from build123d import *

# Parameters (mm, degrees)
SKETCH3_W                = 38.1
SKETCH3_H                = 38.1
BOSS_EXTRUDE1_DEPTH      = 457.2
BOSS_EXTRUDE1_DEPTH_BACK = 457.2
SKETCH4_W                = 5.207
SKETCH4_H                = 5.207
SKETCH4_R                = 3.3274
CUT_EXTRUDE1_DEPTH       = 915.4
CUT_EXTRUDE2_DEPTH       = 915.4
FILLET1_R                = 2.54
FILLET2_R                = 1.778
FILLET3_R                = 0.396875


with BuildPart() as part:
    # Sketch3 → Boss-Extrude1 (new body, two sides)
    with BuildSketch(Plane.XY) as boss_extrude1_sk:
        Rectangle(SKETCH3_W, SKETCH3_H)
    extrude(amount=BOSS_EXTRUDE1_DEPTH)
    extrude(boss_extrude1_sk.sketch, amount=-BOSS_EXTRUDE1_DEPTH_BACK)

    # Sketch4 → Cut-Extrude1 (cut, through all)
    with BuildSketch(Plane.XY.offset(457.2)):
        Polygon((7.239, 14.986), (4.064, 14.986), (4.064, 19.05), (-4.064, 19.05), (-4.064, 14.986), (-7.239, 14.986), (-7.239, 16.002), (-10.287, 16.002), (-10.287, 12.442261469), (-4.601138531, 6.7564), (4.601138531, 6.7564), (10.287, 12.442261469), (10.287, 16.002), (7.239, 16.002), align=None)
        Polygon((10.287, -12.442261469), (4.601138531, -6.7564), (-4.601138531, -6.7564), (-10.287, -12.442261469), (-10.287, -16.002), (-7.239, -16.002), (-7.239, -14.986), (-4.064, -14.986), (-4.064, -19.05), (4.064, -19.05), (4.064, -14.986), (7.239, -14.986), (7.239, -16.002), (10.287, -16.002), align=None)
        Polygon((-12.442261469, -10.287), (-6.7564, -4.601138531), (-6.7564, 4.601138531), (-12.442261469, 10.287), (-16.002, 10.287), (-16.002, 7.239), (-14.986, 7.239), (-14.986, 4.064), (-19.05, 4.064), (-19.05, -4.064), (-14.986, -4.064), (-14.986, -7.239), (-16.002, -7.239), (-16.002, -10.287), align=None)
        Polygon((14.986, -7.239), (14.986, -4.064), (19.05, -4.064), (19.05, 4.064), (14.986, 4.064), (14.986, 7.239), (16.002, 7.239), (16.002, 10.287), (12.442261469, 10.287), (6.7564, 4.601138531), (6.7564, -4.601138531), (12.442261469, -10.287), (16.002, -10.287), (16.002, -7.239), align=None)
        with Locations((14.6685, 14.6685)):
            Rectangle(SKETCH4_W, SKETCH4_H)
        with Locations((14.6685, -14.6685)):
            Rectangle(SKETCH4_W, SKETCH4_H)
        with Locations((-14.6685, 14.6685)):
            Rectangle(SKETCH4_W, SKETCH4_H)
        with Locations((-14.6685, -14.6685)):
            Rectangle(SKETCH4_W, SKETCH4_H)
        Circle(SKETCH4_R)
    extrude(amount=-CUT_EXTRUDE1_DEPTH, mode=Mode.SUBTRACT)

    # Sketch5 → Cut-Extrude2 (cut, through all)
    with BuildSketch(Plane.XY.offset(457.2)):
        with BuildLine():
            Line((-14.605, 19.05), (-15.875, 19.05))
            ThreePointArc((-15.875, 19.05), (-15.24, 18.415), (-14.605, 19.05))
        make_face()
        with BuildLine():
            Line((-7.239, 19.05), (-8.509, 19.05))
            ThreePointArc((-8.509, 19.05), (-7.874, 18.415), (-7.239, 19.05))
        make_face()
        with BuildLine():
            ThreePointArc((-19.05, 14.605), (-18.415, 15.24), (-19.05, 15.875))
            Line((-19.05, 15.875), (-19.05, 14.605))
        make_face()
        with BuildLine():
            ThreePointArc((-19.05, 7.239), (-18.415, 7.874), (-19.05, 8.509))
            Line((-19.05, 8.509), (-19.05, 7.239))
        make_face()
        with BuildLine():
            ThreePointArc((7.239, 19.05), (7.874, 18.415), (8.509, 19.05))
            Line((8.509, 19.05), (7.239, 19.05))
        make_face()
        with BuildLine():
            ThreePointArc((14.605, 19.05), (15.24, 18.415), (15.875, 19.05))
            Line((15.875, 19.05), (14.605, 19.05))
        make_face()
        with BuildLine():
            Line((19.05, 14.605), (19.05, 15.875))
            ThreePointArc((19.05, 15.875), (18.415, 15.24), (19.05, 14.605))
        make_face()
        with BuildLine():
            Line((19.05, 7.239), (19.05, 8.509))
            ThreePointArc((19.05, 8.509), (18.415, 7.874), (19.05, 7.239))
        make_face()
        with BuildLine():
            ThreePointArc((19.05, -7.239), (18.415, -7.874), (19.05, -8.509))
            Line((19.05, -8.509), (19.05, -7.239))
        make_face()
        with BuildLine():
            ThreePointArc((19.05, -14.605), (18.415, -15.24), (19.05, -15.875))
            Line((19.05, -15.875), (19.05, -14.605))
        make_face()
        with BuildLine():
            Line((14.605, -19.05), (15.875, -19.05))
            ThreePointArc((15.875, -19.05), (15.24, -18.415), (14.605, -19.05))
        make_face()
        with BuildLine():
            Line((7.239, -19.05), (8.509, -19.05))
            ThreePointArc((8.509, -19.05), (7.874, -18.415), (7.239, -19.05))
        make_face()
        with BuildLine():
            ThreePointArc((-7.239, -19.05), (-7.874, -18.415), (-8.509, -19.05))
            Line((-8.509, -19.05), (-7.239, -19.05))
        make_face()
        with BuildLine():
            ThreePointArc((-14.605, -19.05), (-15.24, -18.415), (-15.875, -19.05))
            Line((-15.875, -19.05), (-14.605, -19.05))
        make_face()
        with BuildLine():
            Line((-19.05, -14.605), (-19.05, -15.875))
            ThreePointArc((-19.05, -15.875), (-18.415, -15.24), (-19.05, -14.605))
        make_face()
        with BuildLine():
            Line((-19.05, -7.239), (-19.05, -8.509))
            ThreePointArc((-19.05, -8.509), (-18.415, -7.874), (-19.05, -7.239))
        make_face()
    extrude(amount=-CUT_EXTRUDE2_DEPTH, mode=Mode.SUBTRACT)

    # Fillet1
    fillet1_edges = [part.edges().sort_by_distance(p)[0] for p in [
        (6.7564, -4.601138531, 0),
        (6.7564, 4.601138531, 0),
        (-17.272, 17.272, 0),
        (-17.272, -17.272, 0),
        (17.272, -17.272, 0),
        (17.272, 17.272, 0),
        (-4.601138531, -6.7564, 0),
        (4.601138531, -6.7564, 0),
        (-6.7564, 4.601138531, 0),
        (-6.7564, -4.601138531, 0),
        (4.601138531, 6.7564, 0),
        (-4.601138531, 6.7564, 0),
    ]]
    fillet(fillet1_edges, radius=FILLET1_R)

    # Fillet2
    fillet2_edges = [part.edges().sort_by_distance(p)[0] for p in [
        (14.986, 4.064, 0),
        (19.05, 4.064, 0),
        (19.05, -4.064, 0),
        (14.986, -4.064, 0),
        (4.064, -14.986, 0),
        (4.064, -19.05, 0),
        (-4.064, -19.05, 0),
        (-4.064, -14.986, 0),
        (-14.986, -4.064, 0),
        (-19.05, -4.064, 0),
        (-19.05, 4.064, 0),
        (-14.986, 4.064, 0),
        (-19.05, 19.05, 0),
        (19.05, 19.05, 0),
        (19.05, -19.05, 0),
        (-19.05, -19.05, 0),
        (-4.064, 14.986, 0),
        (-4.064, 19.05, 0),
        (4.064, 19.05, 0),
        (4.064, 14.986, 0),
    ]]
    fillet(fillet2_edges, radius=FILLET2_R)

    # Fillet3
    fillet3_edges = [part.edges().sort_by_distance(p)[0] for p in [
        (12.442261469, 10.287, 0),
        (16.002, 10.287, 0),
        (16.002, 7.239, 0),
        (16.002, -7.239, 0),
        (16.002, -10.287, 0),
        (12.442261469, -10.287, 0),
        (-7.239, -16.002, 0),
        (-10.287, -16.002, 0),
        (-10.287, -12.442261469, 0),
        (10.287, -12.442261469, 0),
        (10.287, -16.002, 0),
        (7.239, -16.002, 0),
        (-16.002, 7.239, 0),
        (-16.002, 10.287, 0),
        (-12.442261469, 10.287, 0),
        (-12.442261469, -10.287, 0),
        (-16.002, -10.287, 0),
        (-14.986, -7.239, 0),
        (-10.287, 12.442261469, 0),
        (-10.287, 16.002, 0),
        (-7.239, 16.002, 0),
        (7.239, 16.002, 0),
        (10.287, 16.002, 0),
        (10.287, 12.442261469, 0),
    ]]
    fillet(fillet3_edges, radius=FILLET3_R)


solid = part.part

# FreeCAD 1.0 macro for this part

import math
import FreeCAD as App
import Part
import Sketcher
Q = App.Units.Quantity


def edges_at(feature, points):
    """Names of the edges that pass closest to the given points."""
    edges = feature.Shape.Edges
    near = lambda p: min(range(len(edges)), key=lambda i: edges[i].distToShape(Part.Vertex(*p))[0])
    return sorted({f"Edge{near(p) + 1}" for p in points})


def add_polygon(sketch, points):
    """Adds a closed chain of lines whose ends are joined by coincident constraints."""
    first, n = sketch.GeometryCount, len(points)
    for a, b in zip(points, points[1:] + points[:1]):
        sketch.addGeometry(Part.LineSegment(App.Vector(*a, 0), App.Vector(*b, 0)), False)
    for i in range(n):
        sketch.addConstraint(Sketcher.Constraint("Coincident", first + i, 2, first + (i + 1) % n, 1))

doc = App.newDocument("Part")
body = doc.addObject("PartDesign::Body", "Body")

# Sketch on XY plane
sketch1 = doc.addObject("Sketcher::SketchObject", "Sketch")
body.addObject(sketch1)
sketch1.AttachmentSupport = (doc.XY_Plane, [""])
sketch1.MapMode = "FlatFace"
add_polygon(sketch1, [(-19, 19), (-19, -19), (19, -19), (19, 19)])  # lines 0-3
sketch1.addConstraint(Sketcher.Constraint("Vertical", 0))
sketch1.addConstraint(Sketcher.Constraint("Horizontal", 1))
sketch1.addConstraint(Sketcher.Constraint("Vertical", 2))
sketch1.addConstraint(Sketcher.Constraint("Horizontal", 3))
sketch1.addConstraint(Sketcher.Constraint("Symmetric", 0, 2, 2, 2, -1, 1))
sketch1.addConstraint(Sketcher.Constraint("Equal", 3, 0))
sketch1.addConstraint(Sketcher.Constraint("DistanceX", 1, 1, 1, 2, Q("1.5 in")))
pad1 = doc.addObject("PartDesign::Pad", "Pad")
body.addObject(pad1)
pad1.Profile = sketch1
pad1.Type = "TwoLengths"
pad1.Length = Q("18 in")
pad1.Length2 = Q("18 in")

# Sketch on XY plane
sketch2 = doc.addObject("Sketcher::SketchObject", "Sketch001")
body.addObject(sketch2)
sketch2.AttachmentSupport = (doc.XY_Plane, [""])
sketch2.MapMode = "FlatFace"
sketch2.AttachmentOffset = App.Placement(App.Vector(0, 0, 18 * 25.4), App.Rotation())
add_polygon(sketch2, [(7.2, 15), (4.1, 15), (4.1, 19.1), (-4.1, 19.1), (-4.1, 15), (-7.2, 15), (-7.2, 16), (-10.3, 16), (-10.3, 12.4), (-4.6, 6.8), (4.6, 6.8), (10.3, 12.4), (10.3, 16), (7.2, 16)])  # lines 0-13
add_polygon(sketch2, [(10.3, -12.4), (4.6, -6.8), (-4.6, -6.8), (-10.3, -12.4), (-10.3, -16), (-7.2, -16), (-7.2, -15), (-4.1, -15), (-4.1, -19.1), (4.1, -19.1), (4.1, -15), (7.2, -15), (7.2, -16), (10.3, -16)])  # lines 14-27
add_polygon(sketch2, [(-12.4, -10.3), (-6.8, -4.6), (-6.8, 4.6), (-12.4, 10.3), (-16, 10.3), (-16, 7.2), (-15, 7.2), (-15, 4.1), (-19.1, 4.1), (-19.1, -4.1), (-15, -4.1), (-15, -7.2), (-16, -7.2), (-16, -10.3)])  # lines 28-41
add_polygon(sketch2, [(15, -7.2), (15, -4.1), (19.1, -4.1), (19.1, 4.1), (15, 4.1), (15, 7.2), (16, 7.2), (16, 10.3), (12.4, 10.3), (6.8, 4.6), (6.8, -4.6), (12.4, -10.3), (16, -10.3), (16, -7.2)])  # lines 42-55
add_polygon(sketch2, [(12.1, 17.3), (12.1, 12.1), (17.3, 12.1), (17.3, 17.3)])  # lines 56-59
add_polygon(sketch2, [(12.1, -12.1), (12.1, -17.3), (17.3, -17.3), (17.3, -12.1)])  # lines 60-63
add_polygon(sketch2, [(-17.3, 17.3), (-17.3, 12.1), (-12.1, 12.1), (-12.1, 17.3)])  # lines 64-67
add_polygon(sketch2, [(-17.3, -12.1), (-17.3, -17.3), (-12.1, -17.3), (-12.1, -12.1)])  # lines 68-71
sketch2.addGeometry(Part.Circle(App.Vector(0, 0, 0), App.Vector(0, 0, 1), 3.3), False)  # 72
sketch2.addConstraint(Sketcher.Constraint("Horizontal", 0))
sketch2.addConstraint(Sketcher.Constraint("Vertical", 1))
sketch2.addConstraint(Sketcher.Constraint("Horizontal", 2))
sketch2.addConstraint(Sketcher.Constraint("Vertical", 3))
sketch2.addConstraint(Sketcher.Constraint("Horizontal", 4))
sketch2.addConstraint(Sketcher.Constraint("Vertical", 5))
sketch2.addConstraint(Sketcher.Constraint("Horizontal", 6))
sketch2.addConstraint(Sketcher.Constraint("Vertical", 7))
sketch2.addConstraint(Sketcher.Constraint("Horizontal", 9))
sketch2.addConstraint(Sketcher.Constraint("Vertical", 11))
sketch2.addConstraint(Sketcher.Constraint("Horizontal", 12))
sketch2.addConstraint(Sketcher.Constraint("Vertical", 13))
sketch2.addConstraint(Sketcher.Constraint("Horizontal", 15))
sketch2.addConstraint(Sketcher.Constraint("Vertical", 17))
sketch2.addConstraint(Sketcher.Constraint("Horizontal", 18))
sketch2.addConstraint(Sketcher.Constraint("Vertical", 19))
sketch2.addConstraint(Sketcher.Constraint("Horizontal", 20))
sketch2.addConstraint(Sketcher.Constraint("Vertical", 21))
sketch2.addConstraint(Sketcher.Constraint("Horizontal", 22))
sketch2.addConstraint(Sketcher.Constraint("Vertical", 23))
sketch2.addConstraint(Sketcher.Constraint("Horizontal", 24))
sketch2.addConstraint(Sketcher.Constraint("Vertical", 25))
sketch2.addConstraint(Sketcher.Constraint("Horizontal", 26))
sketch2.addConstraint(Sketcher.Constraint("Vertical", 27))
sketch2.addConstraint(Sketcher.Constraint("Vertical", 29))
sketch2.addConstraint(Sketcher.Constraint("Horizontal", 31))
sketch2.addConstraint(Sketcher.Constraint("Vertical", 32))
sketch2.addConstraint(Sketcher.Constraint("Horizontal", 33))
sketch2.addConstraint(Sketcher.Constraint("Vertical", 34))
sketch2.addConstraint(Sketcher.Constraint("Horizontal", 35))
sketch2.addConstraint(Sketcher.Constraint("Vertical", 36))
sketch2.addConstraint(Sketcher.Constraint("Horizontal", 37))
sketch2.addConstraint(Sketcher.Constraint("Vertical", 38))
sketch2.addConstraint(Sketcher.Constraint("Horizontal", 39))
sketch2.addConstraint(Sketcher.Constraint("Vertical", 40))
sketch2.addConstraint(Sketcher.Constraint("Horizontal", 41))
sketch2.addConstraint(Sketcher.Constraint("Vertical", 42))
sketch2.addConstraint(Sketcher.Constraint("Horizontal", 43))
sketch2.addConstraint(Sketcher.Constraint("Vertical", 44))
sketch2.addConstraint(Sketcher.Constraint("Horizontal", 45))
sketch2.addConstraint(Sketcher.Constraint("Vertical", 46))
sketch2.addConstraint(Sketcher.Constraint("Horizontal", 47))
sketch2.addConstraint(Sketcher.Constraint("Vertical", 48))
sketch2.addConstraint(Sketcher.Constraint("Horizontal", 49))
sketch2.addConstraint(Sketcher.Constraint("Vertical", 51))
sketch2.addConstraint(Sketcher.Constraint("Horizontal", 53))
sketch2.addConstraint(Sketcher.Constraint("Vertical", 54))
sketch2.addConstraint(Sketcher.Constraint("Horizontal", 55))
sketch2.addConstraint(Sketcher.Constraint("Vertical", 56))
sketch2.addConstraint(Sketcher.Constraint("Horizontal", 57))
sketch2.addConstraint(Sketcher.Constraint("Vertical", 58))
sketch2.addConstraint(Sketcher.Constraint("Horizontal", 59))
sketch2.addConstraint(Sketcher.Constraint("Vertical", 60))
sketch2.addConstraint(Sketcher.Constraint("Horizontal", 61))
sketch2.addConstraint(Sketcher.Constraint("Vertical", 62))
sketch2.addConstraint(Sketcher.Constraint("Horizontal", 63))
sketch2.addConstraint(Sketcher.Constraint("Vertical", 64))
sketch2.addConstraint(Sketcher.Constraint("Horizontal", 65))
sketch2.addConstraint(Sketcher.Constraint("Vertical", 66))
sketch2.addConstraint(Sketcher.Constraint("Horizontal", 67))
sketch2.addConstraint(Sketcher.Constraint("Vertical", 68))
sketch2.addConstraint(Sketcher.Constraint("Horizontal", 69))
sketch2.addConstraint(Sketcher.Constraint("Vertical", 70))
sketch2.addConstraint(Sketcher.Constraint("Horizontal", 71))
sketch2.addConstraint(Sketcher.Constraint("Coincident", 72, 3, -1, 1))
sketch2.addConstraint(Sketcher.Constraint("Symmetric", 8, 2, 14, 2, -1, 1))
sketch2.addConstraint(Sketcher.Constraint("Symmetric", 10, 2, 16, 2, -1, 1))
sketch2.addConstraint(Sketcher.Constraint("Symmetric", 12, 2, 18, 2, -1, 1))
sketch2.addConstraint(Sketcher.Constraint("Symmetric", 0, 2, 20, 2, -1, 1))
sketch2.addConstraint(Sketcher.Constraint("Symmetric", 2, 2, 22, 2, -1, 1))
sketch2.addConstraint(Sketcher.Constraint("Symmetric", 4, 2, 24, 2, -1, 1))
sketch2.addConstraint(Sketcher.Constraint("Symmetric", 6, 2, 26, 2, -1, 1))
sketch2.addConstraint(Sketcher.Constraint("Symmetric", 34, 2, 42, 2, -1, 1))
sketch2.addConstraint(Sketcher.Constraint("Symmetric", 36, 2, 44, 2, -1, 1))
sketch2.addConstraint(Sketcher.Constraint("Symmetric", 38, 2, 46, 2, -1, 1))
sketch2.addConstraint(Sketcher.Constraint("Symmetric", 40, 2, 48, 2, -1, 1))
sketch2.addConstraint(Sketcher.Constraint("Symmetric", 28, 2, 50, 2, -1, 1))
sketch2.addConstraint(Sketcher.Constraint("Symmetric", 30, 2, 52, 2, -1, 1))
sketch2.addConstraint(Sketcher.Constraint("Symmetric", 32, 2, 54, 2, -1, 1))
sketch2.addConstraint(Sketcher.Constraint("Symmetric", 62, 2, 64, 2, -1, 1))
sketch2.addConstraint(Sketcher.Constraint("Symmetric", 60, 2, 66, 2, -1, 1))
sketch2.addConstraint(Sketcher.Constraint("Symmetric", 58, 2, 68, 2, -1, 1))
sketch2.addConstraint(Sketcher.Constraint("Symmetric", 56, 2, 70, 2, -1, 1))
sketch2.addConstraint(Sketcher.Constraint("Symmetric", 0, 2, 3, 2, -2))
sketch2.addConstraint(Sketcher.Constraint("Symmetric", 7, 2, 10, 2, -2))
sketch2.addConstraint(Sketcher.Constraint("Symmetric", 5, 2, 12, 2, -2))
sketch2.addConstraint(Sketcher.Constraint("Symmetric", 37, 2, 42, 2, -2))
sketch2.addConstraint(Sketcher.Constraint("Symmetric", 32, 2, 47, 2, -2))
sketch2.addConstraint(Sketcher.Constraint("Symmetric", 30, 2, 49, 2, -2))
sketch2.addConstraint(Sketcher.Constraint("Symmetric", 57, 2, 64, 2, -2))
sketch2.addConstraint(Sketcher.Constraint("Symmetric", 59, 2, 66, 2, -2))
sketch2.addConstraint(Sketcher.Constraint("Perpendicular", 8, 10))
sketch2.addConstraint(Sketcher.Constraint("Perpendicular", 10, 14))
sketch2.addConstraint(Sketcher.Constraint("Perpendicular", 14, 16))
sketch2.addConstraint(Sketcher.Constraint("Parallel", 16, 28))
sketch2.addConstraint(Sketcher.Constraint("Perpendicular", 28, 30))
sketch2.addConstraint(Sketcher.Constraint("Perpendicular", 30, 50))
sketch2.addConstraint(Sketcher.Constraint("Perpendicular", 50, 52))
sketch2.addConstraint(Sketcher.Constraint("Horizontal", 29, 2, 50, 2))
sketch2.addConstraint(Sketcher.Constraint("Equal", 45, 1))
sketch2.addConstraint(Sketcher.Constraint("Equal", 55, 5))
sketch2.addConstraint(Sketcher.Constraint("Equal", 53, 7))
sketch2.addConstraint(Sketcher.Constraint("Equal", 15, 29))
sketch2.addConstraint(Sketcher.Constraint("Equal", 26, 32))
sketch2.addConstraint(Sketcher.Constraint("Equal", 24, 34))
sketch2.addConstraint(Sketcher.Constraint("Equal", 22, 36))
sketch2.addConstraint(Sketcher.Constraint("Equal", 71, 56))
sketch2.addConstraint(Sketcher.Constraint("Diameter", 72, Q("0.262 in")))
sketch2.addConstraint(Sketcher.Constraint("DistanceX", 2, 2, 2, 1, Q("0.32 in")))
sketch2.addConstraint(Sketcher.Constraint("DistanceX", 6, 2, 6, 1, Q("0.12 in")))
sketch2.addConstraint(Sketcher.Constraint("DistanceX", 33, 1, 33, 2, Q("0.04 in")))
sketch2.addConstraint(Sketcher.Constraint("DistanceX", 35, 2, 35, 1, Q("0.16 in")))
sketch2.addConstraint(Sketcher.Constraint("DistanceX", 0, 2, 0, 1, Q("0.125 in")))
sketch2.addConstraint(Sketcher.Constraint("DistanceX", 57, 1, 57, 2, Q("0.205 in")))
sketch2.addConstraint(Sketcher.Constraint("DistanceY", -1, 1, 0, 2, Q("0.59 in")))
sketch2.addConstraint(Sketcher.Constraint("DistanceX", 31, 2, -1, 1, Q("0.63 in")))
sketch2.addConstraint(Sketcher.Constraint("DistanceX", -1, 1, 57, 2, Q("0.68 in")))
sketch2.addConstraint(Sketcher.Constraint("DistanceY", -1, 1, 58, 2, Q("0.68 in")))
sketch2.addConstraint(Sketcher.Constraint("DistanceY", -1, 1, 8, 2, Q("0.266 in")))
sketch2.addConstraint(Sketcher.Constraint("DistanceX", 31, 2, 31, 1, 3.559739))
pocket1 = doc.addObject("PartDesign::Pocket", "Pocket")
body.addObject(pocket1)
pocket1.Profile = sketch2
pocket1.Type = "ThroughAll"

# Sketch on XY plane
sketch3 = doc.addObject("Sketcher::SketchObject", "Sketch002")
body.addObject(sketch3)
sketch3.AttachmentSupport = (doc.XY_Plane, [""])
sketch3.MapMode = "FlatFace"
sketch3.AttachmentOffset = App.Placement(App.Vector(0, 0, 18 * 25.4), App.Rotation())
sketch3.addGeometry(Part.LineSegment(App.Vector(-14.6, 19.1, 0), App.Vector(-15.9, 19.1, 0)), False)
sketch3.addGeometry(Part.ArcOfCircle(Part.Circle(App.Vector(-15.2, 19.1, 0), App.Vector(0, 0, 1), 0.6), math.radians(180), math.radians(360)), False)
sketch3.addGeometry(Part.LineSegment(App.Vector(-7.2, 19.1, 0), App.Vector(-8.5, 19.1, 0)), False)
sketch3.addGeometry(Part.ArcOfCircle(Part.Circle(App.Vector(-7.9, 19.1, 0), App.Vector(0, 0, 1), 0.6), math.radians(180), math.radians(360)), False)
sketch3.addGeometry(Part.ArcOfCircle(Part.Circle(App.Vector(-19.1, 15.2, 0), App.Vector(0, 0, 1), 0.6), math.radians(-90), math.radians(90)), False)
sketch3.addGeometry(Part.LineSegment(App.Vector(-19.1, 15.9, 0), App.Vector(-19.1, 14.6, 0)), False)
sketch3.addGeometry(Part.ArcOfCircle(Part.Circle(App.Vector(-19.1, 7.9, 0), App.Vector(0, 0, 1), 0.6), math.radians(-90), math.radians(90)), False)
sketch3.addGeometry(Part.LineSegment(App.Vector(-19.1, 8.5, 0), App.Vector(-19.1, 7.2, 0)), False)
sketch3.addGeometry(Part.ArcOfCircle(Part.Circle(App.Vector(7.9, 19.1, 0), App.Vector(0, 0, 1), 0.6), math.radians(180), math.radians(360)), False)
sketch3.addGeometry(Part.LineSegment(App.Vector(8.5, 19.1, 0), App.Vector(7.2, 19.1, 0)), False)
sketch3.addGeometry(Part.ArcOfCircle(Part.Circle(App.Vector(15.2, 19.1, 0), App.Vector(0, 0, 1), 0.6), math.radians(180), math.radians(360)), False)
sketch3.addGeometry(Part.LineSegment(App.Vector(15.9, 19.1, 0), App.Vector(14.6, 19.1, 0)), False)
sketch3.addGeometry(Part.LineSegment(App.Vector(19.1, 14.6, 0), App.Vector(19.1, 15.9, 0)), False)
sketch3.addGeometry(Part.ArcOfCircle(Part.Circle(App.Vector(19.1, 15.2, 0), App.Vector(0, 0, 1), 0.6), math.radians(90), math.radians(270)), False)
sketch3.addGeometry(Part.LineSegment(App.Vector(19.1, 7.2, 0), App.Vector(19.1, 8.5, 0)), False)
sketch3.addGeometry(Part.ArcOfCircle(Part.Circle(App.Vector(19.1, 7.9, 0), App.Vector(0, 0, 1), 0.6), math.radians(90), math.radians(270)), False)
sketch3.addGeometry(Part.ArcOfCircle(Part.Circle(App.Vector(19.1, -7.9, 0), App.Vector(0, 0, 1), 0.6), math.radians(90), math.radians(270)), False)
sketch3.addGeometry(Part.LineSegment(App.Vector(19.1, -8.5, 0), App.Vector(19.1, -7.2, 0)), False)
sketch3.addGeometry(Part.ArcOfCircle(Part.Circle(App.Vector(19.1, -15.2, 0), App.Vector(0, 0, 1), 0.6), math.radians(90), math.radians(270)), False)
sketch3.addGeometry(Part.LineSegment(App.Vector(19.1, -15.9, 0), App.Vector(19.1, -14.6, 0)), False)
sketch3.addGeometry(Part.LineSegment(App.Vector(14.6, -19.1, 0), App.Vector(15.9, -19.1, 0)), False)
sketch3.addGeometry(Part.ArcOfCircle(Part.Circle(App.Vector(15.2, -19.1, 0), App.Vector(0, 0, 1), 0.6), math.radians(0), math.radians(180)), False)
sketch3.addGeometry(Part.LineSegment(App.Vector(7.2, -19.1, 0), App.Vector(8.5, -19.1, 0)), False)
sketch3.addGeometry(Part.ArcOfCircle(Part.Circle(App.Vector(7.9, -19.1, 0), App.Vector(0, 0, 1), 0.6), math.radians(0), math.radians(180)), False)
sketch3.addGeometry(Part.ArcOfCircle(Part.Circle(App.Vector(-7.9, -19.1, 0), App.Vector(0, 0, 1), 0.6), math.radians(0), math.radians(180)), False)
sketch3.addGeometry(Part.LineSegment(App.Vector(-8.5, -19.1, 0), App.Vector(-7.2, -19.1, 0)), False)
sketch3.addGeometry(Part.ArcOfCircle(Part.Circle(App.Vector(-15.2, -19.1, 0), App.Vector(0, 0, 1), 0.6), math.radians(0), math.radians(180)), False)
sketch3.addGeometry(Part.LineSegment(App.Vector(-15.9, -19.1, 0), App.Vector(-14.6, -19.1, 0)), False)
sketch3.addGeometry(Part.LineSegment(App.Vector(-19.1, -14.6, 0), App.Vector(-19.1, -15.9, 0)), False)
sketch3.addGeometry(Part.ArcOfCircle(Part.Circle(App.Vector(-19.1, -15.2, 0), App.Vector(0, 0, 1), 0.6), math.radians(-90), math.radians(90)), False)
sketch3.addGeometry(Part.LineSegment(App.Vector(-19.1, -7.2, 0), App.Vector(-19.1, -8.5, 0)), False)
sketch3.addGeometry(Part.ArcOfCircle(Part.Circle(App.Vector(-19.1, -7.9, 0), App.Vector(0, 0, 1), 0.6), math.radians(-90), math.radians(90)), False)
sketch3.addConstraint(Sketcher.Constraint("Coincident", 0, 1, 1, 2))
sketch3.addConstraint(Sketcher.Constraint("Coincident", 1, 1, 0, 2))
sketch3.addConstraint(Sketcher.Constraint("Coincident", 2, 1, 3, 2))
sketch3.addConstraint(Sketcher.Constraint("Coincident", 3, 1, 2, 2))
sketch3.addConstraint(Sketcher.Constraint("Coincident", 4, 1, 5, 2))
sketch3.addConstraint(Sketcher.Constraint("Coincident", 5, 1, 4, 2))
sketch3.addConstraint(Sketcher.Constraint("Coincident", 6, 1, 7, 2))
sketch3.addConstraint(Sketcher.Constraint("Coincident", 7, 1, 6, 2))
sketch3.addConstraint(Sketcher.Constraint("Coincident", 8, 1, 9, 2))
sketch3.addConstraint(Sketcher.Constraint("Coincident", 9, 1, 8, 2))
sketch3.addConstraint(Sketcher.Constraint("Coincident", 10, 1, 11, 2))
sketch3.addConstraint(Sketcher.Constraint("Coincident", 11, 1, 10, 2))
sketch3.addConstraint(Sketcher.Constraint("Coincident", 12, 1, 13, 2))
sketch3.addConstraint(Sketcher.Constraint("Coincident", 13, 1, 12, 2))
sketch3.addConstraint(Sketcher.Constraint("Coincident", 14, 1, 15, 2))
sketch3.addConstraint(Sketcher.Constraint("Coincident", 15, 1, 14, 2))
sketch3.addConstraint(Sketcher.Constraint("Coincident", 16, 1, 17, 2))
sketch3.addConstraint(Sketcher.Constraint("Coincident", 17, 1, 16, 2))
sketch3.addConstraint(Sketcher.Constraint("Coincident", 18, 1, 19, 2))
sketch3.addConstraint(Sketcher.Constraint("Coincident", 19, 1, 18, 2))
sketch3.addConstraint(Sketcher.Constraint("Coincident", 20, 1, 21, 2))
sketch3.addConstraint(Sketcher.Constraint("Coincident", 21, 1, 20, 2))
sketch3.addConstraint(Sketcher.Constraint("Coincident", 22, 1, 23, 2))
sketch3.addConstraint(Sketcher.Constraint("Coincident", 23, 1, 22, 2))
sketch3.addConstraint(Sketcher.Constraint("Coincident", 24, 1, 25, 2))
sketch3.addConstraint(Sketcher.Constraint("Coincident", 25, 1, 24, 2))
sketch3.addConstraint(Sketcher.Constraint("Coincident", 26, 1, 27, 2))
sketch3.addConstraint(Sketcher.Constraint("Coincident", 27, 1, 26, 2))
sketch3.addConstraint(Sketcher.Constraint("Coincident", 28, 1, 29, 2))
sketch3.addConstraint(Sketcher.Constraint("Coincident", 29, 1, 28, 2))
sketch3.addConstraint(Sketcher.Constraint("Coincident", 30, 1, 31, 2))
sketch3.addConstraint(Sketcher.Constraint("Coincident", 31, 1, 30, 2))
sketch3.addConstraint(Sketcher.Constraint("Horizontal", 0))
sketch3.addConstraint(Sketcher.Constraint("Horizontal", 2))
sketch3.addConstraint(Sketcher.Constraint("Vertical", 5))
sketch3.addConstraint(Sketcher.Constraint("Vertical", 7))
sketch3.addConstraint(Sketcher.Constraint("Horizontal", 9))
sketch3.addConstraint(Sketcher.Constraint("Horizontal", 11))
sketch3.addConstraint(Sketcher.Constraint("Vertical", 12))
sketch3.addConstraint(Sketcher.Constraint("Vertical", 14))
sketch3.addConstraint(Sketcher.Constraint("Vertical", 17))
sketch3.addConstraint(Sketcher.Constraint("Vertical", 19))
sketch3.addConstraint(Sketcher.Constraint("Horizontal", 20))
sketch3.addConstraint(Sketcher.Constraint("Horizontal", 22))
sketch3.addConstraint(Sketcher.Constraint("Horizontal", 25))
sketch3.addConstraint(Sketcher.Constraint("Horizontal", 27))
sketch3.addConstraint(Sketcher.Constraint("Vertical", 28))
sketch3.addConstraint(Sketcher.Constraint("Vertical", 30))
sketch3.addConstraint(Sketcher.Constraint("Equal", 1, 3))
sketch3.addConstraint(Sketcher.Constraint("Equal", 3, 4))
sketch3.addConstraint(Sketcher.Constraint("Equal", 4, 6))
sketch3.addConstraint(Sketcher.Constraint("Equal", 6, 8))
sketch3.addConstraint(Sketcher.Constraint("Equal", 8, 10))
sketch3.addConstraint(Sketcher.Constraint("Equal", 10, 13))
sketch3.addConstraint(Sketcher.Constraint("Equal", 13, 15))
sketch3.addConstraint(Sketcher.Constraint("Equal", 15, 16))
sketch3.addConstraint(Sketcher.Constraint("Equal", 16, 18))
sketch3.addConstraint(Sketcher.Constraint("Equal", 18, 21))
sketch3.addConstraint(Sketcher.Constraint("Equal", 21, 23))
sketch3.addConstraint(Sketcher.Constraint("Equal", 23, 24))
sketch3.addConstraint(Sketcher.Constraint("Equal", 24, 26))
sketch3.addConstraint(Sketcher.Constraint("Equal", 26, 29))
sketch3.addConstraint(Sketcher.Constraint("Equal", 29, 31))
sketch3.addConstraint(Sketcher.Constraint("Symmetric", 6, 3, 16, 3, -1, 1))
sketch3.addConstraint(Sketcher.Constraint("Symmetric", 4, 3, 18, 3, -1, 1))
sketch3.addConstraint(Sketcher.Constraint("Symmetric", 1, 3, 21, 3, -1, 1))
sketch3.addConstraint(Sketcher.Constraint("Symmetric", 3, 3, 23, 3, -1, 1))
sketch3.addConstraint(Sketcher.Constraint("Symmetric", 8, 3, 24, 3, -1, 1))
sketch3.addConstraint(Sketcher.Constraint("Symmetric", 10, 3, 26, 3, -1, 1))
sketch3.addConstraint(Sketcher.Constraint("Symmetric", 13, 3, 29, 3, -1, 1))
sketch3.addConstraint(Sketcher.Constraint("Symmetric", 15, 3, 31, 3, -1, 1))
sketch3.addConstraint(Sketcher.Constraint("Symmetric", 3, 3, 8, 3, -2))
sketch3.addConstraint(Sketcher.Constraint("Symmetric", 1, 3, 10, 3, -2))
sketch3.addConstraint(Sketcher.Constraint("Symmetric", 4, 3, 13, 3, -2))
sketch3.addConstraint(Sketcher.Constraint("Symmetric", 6, 3, 15, 3, -2))
sketch3.addConstraint(Sketcher.Constraint("Horizontal", 1, 3, 3, 3))
sketch3.addConstraint(Sketcher.Constraint("Horizontal", 10, 3, 0, 1))
sketch3.addConstraint(Sketcher.Constraint("Horizontal", 1, 1, 2, 1))
sketch3.addConstraint(Sketcher.Constraint("Horizontal", 3, 1, 8, 1))
sketch3.addConstraint(Sketcher.Constraint("Horizontal", 9, 1, 10, 1))
sketch3.addConstraint(Sketcher.Constraint("Horizontal", 26, 3, 20, 1))
sketch3.addConstraint(Sketcher.Constraint("Horizontal", 21, 1, 22, 1))
sketch3.addConstraint(Sketcher.Constraint("Horizontal", 23, 1, 24, 1))
sketch3.addConstraint(Sketcher.Constraint("Horizontal", 25, 1, 26, 1))
sketch3.addConstraint(Sketcher.Constraint("Vertical", 4, 3, 6, 3))
sketch3.addConstraint(Sketcher.Constraint("Vertical", 31, 3, 4, 1))
sketch3.addConstraint(Sketcher.Constraint("Vertical", 5, 1, 6, 1))
sketch3.addConstraint(Sketcher.Constraint("Vertical", 18, 3, 12, 1))
sketch3.addConstraint(Sketcher.Constraint("Vertical", 13, 1, 14, 1))
sketch3.addConstraint(Sketcher.Constraint("Vertical", 15, 1, 16, 1))
sketch3.addConstraint(Sketcher.Constraint("Vertical", 17, 1, 18, 1))
sketch3.addConstraint(Sketcher.Constraint("Vertical", 7, 1, 28, 1))
sketch3.addConstraint(Sketcher.Constraint("Vertical", 29, 1, 30, 1))
sketch3.addConstraint(Sketcher.Constraint("Radius", 1, Q("0.025 in")))
sketch3.addConstraint(Sketcher.Constraint("DistanceX", 1, 3, -1, 1, Q("0.6 in")))
sketch3.addConstraint(Sketcher.Constraint("DistanceY", -1, 1, 4, 3, Q("0.6 in")))
sketch3.addConstraint(Sketcher.Constraint("DistanceX", 4, 3, 13, 3, Q("1.5 in")))
sketch3.addConstraint(Sketcher.Constraint("DistanceY", 21, 3, 10, 3, Q("1.5 in")))
sketch3.addConstraint(Sketcher.Constraint("DistanceX", 3, 3, -1, 1, Q("0.31 in")))
sketch3.addConstraint(Sketcher.Constraint("DistanceY", -1, 1, 6, 3, Q("0.31 in")))
pocket2 = doc.addObject("PartDesign::Pocket", "Pocket001")
body.addObject(pocket2)
pocket2.Profile = sketch3
pocket2.Type = "ThroughAll"
doc.recompute()

fillet = doc.addObject("PartDesign::Fillet", "Fillet")
body.addObject(fillet)
fillet.Base = (pocket2, edges_at(pocket2, [
    (6.756, -4.601, 0),
    (6.756, 4.601, 0),
    (-17.272, 17.272, 0),
    (-17.272, -17.272, 0),
    (17.272, -17.272, 0),
    (17.272, 17.272, 0),
    (-4.601, -6.756, 0),
    (4.601, -6.756, 0),
    (-6.756, 4.601, 0),
    (-6.756, -4.601, 0),
    (4.601, 6.756, 0),
    (-4.601, 6.756, 0),
]))
fillet.Radius = Q("0.1 in")
doc.recompute()

fillet2 = doc.addObject("PartDesign::Fillet", "Fillet001")
body.addObject(fillet2)
fillet2.Base = (fillet, edges_at(fillet, [
    (14.986, 4.064, 0),
    (19.05, 4.064, 0),
    (19.05, -4.064, 0),
    (14.986, -4.064, 0),
    (4.064, -14.986, 0),
    (4.064, -19.05, 0),
    (-4.064, -19.05, 0),
    (-4.064, -14.986, 0),
    (-14.986, -4.064, 0),
    (-19.05, -4.064, 0),
    (-19.05, 4.064, 0),
    (-14.986, 4.064, 0),
    (-19.05, 19.05, 0),
    (19.05, 19.05, 0),
    (19.05, -19.05, 0),
    (-19.05, -19.05, 0),
    (-4.064, 14.986, 0),
    (-4.064, 19.05, 0),
    (4.064, 19.05, 0),
    (4.064, 14.986, 0),
]))
fillet2.Radius = Q("0.07 in")
doc.recompute()

fillet3 = doc.addObject("PartDesign::Fillet", "Fillet002")
body.addObject(fillet3)
fillet3.Base = (fillet2, edges_at(fillet2, [
    (12.442, 10.287, 0),
    (16.002, 10.287, 0),
    (16.002, 7.239, 0),
    (16.002, -7.239, 0),
    (16.002, -10.287, 0),
    (12.442, -10.287, 0),
    (-7.239, -16.002, 0),
    (-10.287, -16.002, 0),
    (-10.287, -12.442, 0),
    (10.287, -12.442, 0),
    (10.287, -16.002, 0),
    (7.239, -16.002, 0),
    (-16.002, 7.239, 0),
    (-16.002, 10.287, 0),
    (-12.442, 10.287, 0),
    (-12.442, -10.287, 0),
    (-16.002, -10.287, 0),
    (-14.986, -7.239, 0),
    (-10.287, 12.442, 0),
    (-10.287, 16.002, 0),
    (-7.239, 16.002, 0),
    (7.239, 16.002, 0),
    (10.287, 16.002, 0),
    (10.287, 12.442, 0),
]))
fillet3.Radius = Q("0.015625 in")

doc.recompute()
